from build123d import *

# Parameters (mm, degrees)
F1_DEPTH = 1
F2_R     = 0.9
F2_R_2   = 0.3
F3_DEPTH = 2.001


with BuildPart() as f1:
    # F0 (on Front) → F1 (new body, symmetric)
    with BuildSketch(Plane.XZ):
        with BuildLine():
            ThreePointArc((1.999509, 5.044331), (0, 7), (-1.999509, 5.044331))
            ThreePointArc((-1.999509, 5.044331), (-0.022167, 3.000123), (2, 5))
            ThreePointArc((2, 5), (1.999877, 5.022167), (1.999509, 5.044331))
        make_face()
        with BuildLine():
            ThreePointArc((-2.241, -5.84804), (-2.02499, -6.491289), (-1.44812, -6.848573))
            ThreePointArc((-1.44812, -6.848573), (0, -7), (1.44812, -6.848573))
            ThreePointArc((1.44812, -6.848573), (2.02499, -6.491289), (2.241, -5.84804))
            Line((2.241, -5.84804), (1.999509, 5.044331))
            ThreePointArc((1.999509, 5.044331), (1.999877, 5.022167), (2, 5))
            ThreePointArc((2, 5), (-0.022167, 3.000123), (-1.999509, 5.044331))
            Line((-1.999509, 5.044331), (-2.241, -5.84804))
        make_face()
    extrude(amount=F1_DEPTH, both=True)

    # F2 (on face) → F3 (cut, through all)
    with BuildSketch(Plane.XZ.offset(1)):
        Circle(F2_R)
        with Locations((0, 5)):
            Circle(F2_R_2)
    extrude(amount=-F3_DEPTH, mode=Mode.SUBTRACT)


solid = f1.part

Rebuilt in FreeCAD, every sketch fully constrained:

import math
import FreeCAD as App
import Part
import Sketcher

doc = App.newDocument("Part")
body = doc.addObject("PartDesign::Body", "Body")

# Sketch on XZ plane
sketch1 = body.newObject("Sketcher::SketchObject", "Sketch")
sketch1.AttachmentSupport = (doc.getObject("XZ_Plane"), [""])
sketch1.MapMode = "FlatFace"
sketch1.addGeometry([
    Part.ArcOfCircle(Part.Circle(App.Vector(0, 5, 0), App.Vector(0, 0, 1), 2), math.radians(1), math.radians(179)),  # 0
    Part.LineSegment(App.Vector(-2, 5, 0), App.Vector(-2.2, -5.8, 0)),  # 1
    Part.ArcOfCircle(Part.Circle(App.Vector(-1.2, -5.9, 0), App.Vector(0, 0, 1), 1), math.radians(179), math.radians(258)),  # 2
    Part.ArcOfCircle(Part.Circle(App.Vector(0, 0, 0), App.Vector(0, 0, 1), 7), math.radians(-102), math.radians(-78)),  # 3
    Part.ArcOfCircle(Part.Circle(App.Vector(1.2, -5.9, 0), App.Vector(0, 0, 1), 1), math.radians(-78), math.radians(1)),  # 4
    Part.LineSegment(App.Vector(2.2, -5.8, 0), App.Vector(2, 5, 0)),  # 5
], False)
sketch1.addConstraint([
    Sketcher.Constraint("Tangent", 0, 2, 1, 1),
    Sketcher.Constraint("Tangent", 1, 2, 2, 1),
    Sketcher.Constraint("Tangent", 2, 2, 3, 1),
    Sketcher.Constraint("Tangent", 3, 2, 4, 1),
    Sketcher.Constraint("Tangent", 4, 2, 5, 1),
    Sketcher.Constraint("Tangent", 5, 2, 0, 1),
    Sketcher.Constraint("Equal", 2, 4),
    Sketcher.Constraint("Symmetric", 2, 3, 4, 3, -2),
    Sketcher.Constraint("PointOnObject", 0, 3, -2),
    Sketcher.Constraint("Radius", 0, 2.0),
    Sketcher.Constraint("Radius", 2, 1.0),
    Sketcher.Constraint("DistanceY", -1, 1, 0, 3, 5.0),
    Sketcher.Constraint("DistanceX", 1, 2, -1, 1, 2.241),
    Sketcher.Constraint("Radius", 3, 7.000012),
    Sketcher.Constraint("DistanceY", 1, 2, -1, 1, 5.84804),
])
pad1 = body.newObject("PartDesign::Pad", "Pad")
pad1.Profile = sketch1
pad1.Length = 2
pad1.Midplane = True

# Sketch on XZ plane
sketch2 = body.newObject("Sketcher::SketchObject", "Sketch001")
sketch2.AttachmentSupport = (doc.getObject("XZ_Plane"), [""])
sketch2.MapMode = "FlatFace"
sketch2.AttachmentOffset = App.Placement(App.Vector(0, 0, 1), App.Rotation())
sketch2.addGeometry([
    Part.Circle(App.Vector(0, 0, 0), App.Vector(0, 0, 1), 0.9),
    Part.Circle(App.Vector(0, 5, 0), App.Vector(0, 0, 1), 0.3),
], False)
sketch2.addConstraint([
    Sketcher.Constraint("Coincident", 0, 3, -1, 1),
    Sketcher.Constraint("PointOnObject", 1, 3, -2),
    Sketcher.Constraint("Diameter", 0, 1.8),
    Sketcher.Constraint("Diameter", 1, 0.6),
    Sketcher.Constraint("DistanceY", -1, 1, 1, 3, 5.0),
])
pocket1 = body.newObject("PartDesign::Pocket", "Pocket")
pocket1.Profile = sketch2
pocket1.Type = "ThroughAll"

doc.recompute()
